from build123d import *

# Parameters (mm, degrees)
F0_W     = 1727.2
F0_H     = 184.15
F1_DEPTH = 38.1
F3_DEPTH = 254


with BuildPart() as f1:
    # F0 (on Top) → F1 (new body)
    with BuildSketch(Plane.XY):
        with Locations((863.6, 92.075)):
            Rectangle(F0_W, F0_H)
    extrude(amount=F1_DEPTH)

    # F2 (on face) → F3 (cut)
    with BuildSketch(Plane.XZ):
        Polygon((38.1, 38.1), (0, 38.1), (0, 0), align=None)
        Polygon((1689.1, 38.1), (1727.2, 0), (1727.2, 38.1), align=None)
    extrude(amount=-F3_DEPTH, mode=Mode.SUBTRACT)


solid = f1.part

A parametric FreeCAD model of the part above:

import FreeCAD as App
import Part
import Sketcher

V = App.Vector
Q = App.Units.Quantity

doc = App.newDocument("Part")
body = doc.addObject("PartDesign::Body", "Body")

# Sketch on XY plane
sketch1 = doc.addObject("Sketcher::SketchObject", "Sketch")
body.addObject(sketch1)
sketch1.AttachmentSupport = (doc.XY_Plane, [""])
sketch1.MapMode = "FlatFace"
sketch1.addGeometry([
    Part.LineSegment(V(0, 184, 0), V(0, 0, 0)),
    Part.LineSegment(V(0, 0, 0), V(1727, 0, 0)),
    Part.LineSegment(V(1727, 0, 0), V(1727, 184, 0)),
    Part.LineSegment(V(1727, 184, 0), V(0, 184, 0)),
], False)
sketch1.addConstraint([
    Sketcher.Constraint("Coincident", 0, 2, 1, 1),
    Sketcher.Constraint("Coincident", 1, 2, 2, 1),
    Sketcher.Constraint("Coincident", 2, 2, 3, 1),
    Sketcher.Constraint("Coincident", 3, 2, 0, 1),
    Sketcher.Constraint("Vertical", 0),
    Sketcher.Constraint("Horizontal", 1),
    Sketcher.Constraint("Vertical", 2),
    Sketcher.Constraint("Horizontal", 3),
    Sketcher.Constraint("Coincident", 0, 2, -1, 1),
    Sketcher.Constraint("DistanceX", 1, 1, 1, 2, Q("68 in")),
    Sketcher.Constraint("DistanceY", 0, 2, 0, 1, Q("7.25 in")),
])
pad1 = doc.addObject("PartDesign::Pad", "Pad")
body.addObject(pad1)
pad1.Profile = sketch1
pad1.Length = Q("1.5 in")

# Sketch on XZ plane
sketch2 = doc.addObject("Sketcher::SketchObject", "Sketch001")
body.addObject(sketch2)
sketch2.AttachmentSupport = (doc.XZ_Plane, [""])
sketch2.MapMode = "FlatFace"
sketch2.addGeometry([
    Part.LineSegment(V(38, 38, 0), V(0, 38, 0)),  # 0
    Part.LineSegment(V(0, 38, 0), V(0, 0, 0)),  # 1
    Part.LineSegment(V(0, 0, 0), V(38, 38, 0)),  # 2
    Part.LineSegment(V(1689, 38, 0), V(1727, 0, 0)),  # 3
    Part.LineSegment(V(1727, 0, 0), V(1727, 38, 0)),  # 4
    Part.LineSegment(V(1727, 38, 0), V(1689, 38, 0)),  # 5
], False)
sketch2.addConstraint([
    Sketcher.Constraint("Coincident", 0, 2, 1, 1),
    Sketcher.Constraint("Coincident", 1, 2, 2, 1),
    Sketcher.Constraint("Coincident", 2, 2, 0, 1),
    Sketcher.Constraint("Coincident", 3, 2, 4, 1),
    Sketcher.Constraint("Coincident", 4, 2, 5, 1),
    Sketcher.Constraint("Coincident", 5, 2, 3, 1),
    Sketcher.Constraint("Horizontal", 0),
    Sketcher.Constraint("Vertical", 1),
    Sketcher.Constraint("Vertical", 4),
    Sketcher.Constraint("Horizontal", 5),
    Sketcher.Constraint("Coincident", 1, 2, -1, 1),
    Sketcher.Constraint("PointOnObject", 3, 2, -1),
    Sketcher.Constraint("Perpendicular", 2, 3),
    Sketcher.Constraint("Horizontal", 2, 2, 4, 2),
    Sketcher.Constraint("Equal", 0, 5),
    Sketcher.Constraint("DistanceX", 0, 2, 0, 1, Q("1.5 in")),
    Sketcher.Constraint("DistanceX", -1, 1, 3, 2, Q("68 in")),
])
pocket1 = doc.addObject("PartDesign::Pocket", "Pocket")
body.addObject(pocket1)
pocket1.Profile = sketch2
pocket1.Length = Q("10 in")

doc.recompute()
